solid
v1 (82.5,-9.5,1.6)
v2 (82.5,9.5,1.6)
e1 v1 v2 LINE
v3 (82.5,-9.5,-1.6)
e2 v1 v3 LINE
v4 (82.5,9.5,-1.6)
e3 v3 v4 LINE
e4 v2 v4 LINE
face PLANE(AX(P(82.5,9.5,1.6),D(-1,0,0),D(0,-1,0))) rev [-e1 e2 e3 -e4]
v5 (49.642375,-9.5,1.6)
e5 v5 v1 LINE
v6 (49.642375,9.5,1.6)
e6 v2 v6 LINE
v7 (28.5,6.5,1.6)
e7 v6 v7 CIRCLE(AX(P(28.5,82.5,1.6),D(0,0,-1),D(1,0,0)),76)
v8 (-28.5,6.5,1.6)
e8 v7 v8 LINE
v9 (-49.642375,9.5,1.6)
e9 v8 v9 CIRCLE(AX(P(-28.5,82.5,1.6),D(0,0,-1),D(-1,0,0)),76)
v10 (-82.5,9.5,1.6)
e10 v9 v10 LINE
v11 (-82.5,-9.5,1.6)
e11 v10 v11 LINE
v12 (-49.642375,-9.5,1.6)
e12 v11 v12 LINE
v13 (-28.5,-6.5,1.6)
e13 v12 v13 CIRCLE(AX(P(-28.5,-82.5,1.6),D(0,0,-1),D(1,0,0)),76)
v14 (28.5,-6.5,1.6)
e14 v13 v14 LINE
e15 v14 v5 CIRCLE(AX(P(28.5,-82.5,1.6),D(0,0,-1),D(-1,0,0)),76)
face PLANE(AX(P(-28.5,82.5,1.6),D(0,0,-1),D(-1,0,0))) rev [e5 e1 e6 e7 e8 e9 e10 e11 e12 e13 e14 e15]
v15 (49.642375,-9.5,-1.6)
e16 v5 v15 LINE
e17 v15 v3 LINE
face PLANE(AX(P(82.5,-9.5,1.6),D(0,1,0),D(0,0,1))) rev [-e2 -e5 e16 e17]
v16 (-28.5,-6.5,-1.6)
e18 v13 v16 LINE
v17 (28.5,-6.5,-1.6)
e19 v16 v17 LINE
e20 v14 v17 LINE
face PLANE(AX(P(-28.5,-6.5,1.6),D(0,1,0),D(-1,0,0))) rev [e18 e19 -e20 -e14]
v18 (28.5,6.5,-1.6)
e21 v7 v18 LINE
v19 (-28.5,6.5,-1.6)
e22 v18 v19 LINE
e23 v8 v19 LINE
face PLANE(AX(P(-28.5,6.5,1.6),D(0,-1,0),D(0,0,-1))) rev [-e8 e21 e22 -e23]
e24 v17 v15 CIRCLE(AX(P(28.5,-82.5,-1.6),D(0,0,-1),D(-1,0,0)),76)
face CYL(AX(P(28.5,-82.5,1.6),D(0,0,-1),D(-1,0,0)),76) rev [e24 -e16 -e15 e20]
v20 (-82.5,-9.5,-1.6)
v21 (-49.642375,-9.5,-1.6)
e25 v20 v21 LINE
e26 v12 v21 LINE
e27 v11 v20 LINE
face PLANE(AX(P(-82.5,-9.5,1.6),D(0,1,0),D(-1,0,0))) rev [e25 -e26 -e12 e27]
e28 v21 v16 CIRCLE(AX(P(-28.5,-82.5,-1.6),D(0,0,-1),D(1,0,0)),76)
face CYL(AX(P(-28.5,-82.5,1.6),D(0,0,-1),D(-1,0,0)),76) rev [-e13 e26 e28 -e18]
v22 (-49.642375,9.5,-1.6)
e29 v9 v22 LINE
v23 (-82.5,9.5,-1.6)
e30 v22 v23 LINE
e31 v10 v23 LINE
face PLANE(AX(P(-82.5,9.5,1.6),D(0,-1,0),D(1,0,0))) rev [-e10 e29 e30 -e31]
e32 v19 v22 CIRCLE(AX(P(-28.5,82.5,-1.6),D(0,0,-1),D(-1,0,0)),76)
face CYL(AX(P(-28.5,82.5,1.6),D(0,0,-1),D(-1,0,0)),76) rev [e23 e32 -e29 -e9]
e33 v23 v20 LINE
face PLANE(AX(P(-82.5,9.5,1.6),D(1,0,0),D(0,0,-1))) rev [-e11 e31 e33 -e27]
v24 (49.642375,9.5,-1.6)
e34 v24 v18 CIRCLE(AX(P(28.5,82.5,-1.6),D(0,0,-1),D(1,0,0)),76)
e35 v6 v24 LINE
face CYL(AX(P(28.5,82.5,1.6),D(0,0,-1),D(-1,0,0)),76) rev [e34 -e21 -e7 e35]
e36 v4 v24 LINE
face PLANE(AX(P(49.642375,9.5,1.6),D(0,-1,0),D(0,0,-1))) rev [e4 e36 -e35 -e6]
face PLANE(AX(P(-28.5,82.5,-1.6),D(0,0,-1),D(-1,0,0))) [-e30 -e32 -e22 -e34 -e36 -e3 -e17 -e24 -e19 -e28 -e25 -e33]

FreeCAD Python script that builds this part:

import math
import FreeCAD as App
import Part
import Sketcher
Q = App.Units.Quantity

doc = App.newDocument("Part")
body = doc.addObject("PartDesign::Body", "Body")

sketch1 = doc.addObject("Sketcher::SketchObject", "Sketch")
body.addObject(sketch1)
sketch1.AttachmentSupport = (doc.XY_Plane, [""])
sketch1.MapMode = "FlatFace"
sketch1.addGeometry(Part.LineSegment(App.Vector(-82, 10, 0), App.Vector(-82, -10, 0)), False)
sketch1.addGeometry(Part.LineSegment(App.Vector(-82, -10, 0), App.Vector(-50, -10, 0)), False)
sketch1.addGeometry(Part.ArcOfCircle(Part.Circle(App.Vector(-29, -82, 0), App.Vector(0, 0, 1), 76), math.radians(90), math.radians(106.15)), False)
sketch1.addGeometry(Part.LineSegment(App.Vector(-28, -6, 0), App.Vector(28, -6, 0)), False)
sketch1.addGeometry(Part.ArcOfCircle(Part.Circle(App.Vector(29, -82, 0), App.Vector(0, 0, 1), 76), math.radians(73.85), math.radians(90)), False)
sketch1.addGeometry(Part.LineSegment(App.Vector(50, -10, 0), App.Vector(82, -10, 0)), False)
sketch1.addGeometry(Part.LineSegment(App.Vector(82, -10, 0), App.Vector(82, 10, 0)), False)
sketch1.addGeometry(Part.LineSegment(App.Vector(82, 10, 0), App.Vector(50, 10, 0)), False)
sketch1.addGeometry(Part.ArcOfCircle(Part.Circle(App.Vector(29, 82, 0), App.Vector(0, 0, 1), 76), math.radians(-90), math.radians(-73.85)), False)
sketch1.addGeometry(Part.LineSegment(App.Vector(28, 6, 0), App.Vector(-28, 6, 0)), False)
sketch1.addGeometry(Part.ArcOfCircle(Part.Circle(App.Vector(-29, 82, 0), App.Vector(0, 0, 1), 76), math.radians(-106.15), math.radians(-90)), False)
sketch1.addGeometry(Part.LineSegment(App.Vector(-50, 10, 0), App.Vector(-82, 10, 0)), False)
sketch1.addConstraint(Sketcher.Constraint("Coincident", 0, 2, 1, 1))
sketch1.addConstraint(Sketcher.Constraint("Coincident", 1, 2, 2, 2))
sketch1.addConstraint(Sketcher.Constraint("Tangent", 2, 1, 3, 1))
sketch1.addConstraint(Sketcher.Constraint("Tangent", 3, 2, 4, 2))
sketch1.addConstraint(Sketcher.Constraint("Coincident", 4, 1, 5, 1))
sketch1.addConstraint(Sketcher.Constraint("Coincident", 5, 2, 6, 1))
sketch1.addConstraint(Sketcher.Constraint("Coincident", 6, 2, 7, 1))
sketch1.addConstraint(Sketcher.Constraint("Coincident", 7, 2, 8, 2))
sketch1.addConstraint(Sketcher.Constraint("Tangent", 8, 1, 9, 1))
sketch1.addConstraint(Sketcher.Constraint("Tangent", 9, 2, 10, 2))
sketch1.addConstraint(Sketcher.Constraint("Coincident", 10, 1, 11, 1))
sketch1.addConstraint(Sketcher.Constraint("Coincident", 11, 2, 0, 1))
sketch1.addConstraint(Sketcher.Constraint("Vertical", 0))
sketch1.addConstraint(Sketcher.Constraint("Horizontal", 1))
sketch1.addConstraint(Sketcher.Constraint("Horizontal", 3))
sketch1.addConstraint(Sketcher.Constraint("Horizontal", 5))
sketch1.addConstraint(Sketcher.Constraint("Vertical", 6))
sketch1.addConstraint(Sketcher.Constraint("Horizontal", 7))
sketch1.addConstraint(Sketcher.Constraint("Horizontal", 9))
sketch1.addConstraint(Sketcher.Constraint("Horizontal", 11))
sketch1.addConstraint(Sketcher.Constraint("Equal", 2, 4))
sketch1.addConstraint(Sketcher.Constraint("Equal", 4, 8))
sketch1.addConstraint(Sketcher.Constraint("Equal", 8, 10))
sketch1.addConstraint(Sketcher.Constraint("Symmetric", 2, 3, 8, 3, -1, 1))
sketch1.addConstraint(Sketcher.Constraint("Symmetric", 0, 2, 6, 2, -1, 1))
sketch1.addConstraint(Sketcher.Constraint("Symmetric", 4, 1, 10, 1, -1, 1))
sketch1.addConstraint(Sketcher.Constraint("Symmetric", 1, 2, 4, 1, -2))
sketch1.addConstraint(Sketcher.Constraint("Radius", 2, Q("76 mm")))
sketch1.addConstraint(Sketcher.Constraint("DistanceX", 3, 1, 3, 2, Q("57 mm")))
sketch1.addConstraint(Sketcher.Constraint("DistanceY", 0, 2, 0, 1, Q("19 mm")))
sketch1.addConstraint(Sketcher.Constraint("DistanceY", 4, 3, 8, 3, Q("165 mm")))
sketch1.addConstraint(Sketcher.Constraint("DistanceX", 0, 2, 2, 3, Q("54 mm")))
pad1 = doc.addObject("PartDesign::Pad", "Pad")
body.addObject(pad1)
pad1.Profile = sketch1
pad1.Length = 3.2
pad1.Midplane = True

doc.recompute()
